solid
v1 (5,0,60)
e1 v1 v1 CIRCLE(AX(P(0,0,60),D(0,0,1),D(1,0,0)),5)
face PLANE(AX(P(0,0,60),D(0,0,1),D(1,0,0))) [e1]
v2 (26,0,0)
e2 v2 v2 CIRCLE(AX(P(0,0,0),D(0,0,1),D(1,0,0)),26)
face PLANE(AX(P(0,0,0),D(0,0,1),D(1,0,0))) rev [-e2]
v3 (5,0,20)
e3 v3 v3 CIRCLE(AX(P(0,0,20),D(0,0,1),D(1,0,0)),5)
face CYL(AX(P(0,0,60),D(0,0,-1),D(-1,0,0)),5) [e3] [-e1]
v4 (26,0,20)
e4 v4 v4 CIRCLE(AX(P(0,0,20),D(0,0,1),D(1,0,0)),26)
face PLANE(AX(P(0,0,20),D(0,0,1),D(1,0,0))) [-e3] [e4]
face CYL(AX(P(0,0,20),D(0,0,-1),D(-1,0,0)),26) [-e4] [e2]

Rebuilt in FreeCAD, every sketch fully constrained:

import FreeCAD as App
import Part
import Sketcher
Q = App.Units.Quantity

doc = App.newDocument("Part")
body = doc.addObject("PartDesign::Body", "Body")

sketch1 = body.newObject("Sketcher::SketchObject", "Sketch")
sketch1.AttachmentSupport = (doc.getObject("XY_Plane"), [""])
sketch1.MapMode = "FlatFace"
sketch1.addGeometry(Part.Circle(App.Vector(0, 0, 0), App.Vector(0, 0, 1), 26), False)
sketch1.addConstraint([
    Sketcher.Constraint("Coincident", 0, 3, -1, 1),
    Sketcher.Constraint("Diameter", 0, Q("52 mm")),
])
pad1 = body.newObject("PartDesign::Pad", "Pad")
pad1.Profile = sketch1
pad1.Length = 20

sketch2 = body.newObject("Sketcher::SketchObject", "Sketch001")
sketch2.AttachmentSupport = (doc.getObject("XY_Plane"), [""])
sketch2.MapMode = "FlatFace"
sketch2.AttachmentOffset = App.Placement(App.Vector(0, 0, 20), App.Rotation())
sketch2.addGeometry(Part.Circle(App.Vector(0, 0, 0), App.Vector(0, 0, 1), 5), False)
sketch2.addConstraint([
    Sketcher.Constraint("Coincident", 0, 3, -1, 1),
    Sketcher.Constraint("Diameter", 0, Q("10 mm")),
])
pad2 = body.newObject("PartDesign::Pad", "Pad001")
pad2.Profile = sketch2
pad2.Length = 40

doc.recompute()
